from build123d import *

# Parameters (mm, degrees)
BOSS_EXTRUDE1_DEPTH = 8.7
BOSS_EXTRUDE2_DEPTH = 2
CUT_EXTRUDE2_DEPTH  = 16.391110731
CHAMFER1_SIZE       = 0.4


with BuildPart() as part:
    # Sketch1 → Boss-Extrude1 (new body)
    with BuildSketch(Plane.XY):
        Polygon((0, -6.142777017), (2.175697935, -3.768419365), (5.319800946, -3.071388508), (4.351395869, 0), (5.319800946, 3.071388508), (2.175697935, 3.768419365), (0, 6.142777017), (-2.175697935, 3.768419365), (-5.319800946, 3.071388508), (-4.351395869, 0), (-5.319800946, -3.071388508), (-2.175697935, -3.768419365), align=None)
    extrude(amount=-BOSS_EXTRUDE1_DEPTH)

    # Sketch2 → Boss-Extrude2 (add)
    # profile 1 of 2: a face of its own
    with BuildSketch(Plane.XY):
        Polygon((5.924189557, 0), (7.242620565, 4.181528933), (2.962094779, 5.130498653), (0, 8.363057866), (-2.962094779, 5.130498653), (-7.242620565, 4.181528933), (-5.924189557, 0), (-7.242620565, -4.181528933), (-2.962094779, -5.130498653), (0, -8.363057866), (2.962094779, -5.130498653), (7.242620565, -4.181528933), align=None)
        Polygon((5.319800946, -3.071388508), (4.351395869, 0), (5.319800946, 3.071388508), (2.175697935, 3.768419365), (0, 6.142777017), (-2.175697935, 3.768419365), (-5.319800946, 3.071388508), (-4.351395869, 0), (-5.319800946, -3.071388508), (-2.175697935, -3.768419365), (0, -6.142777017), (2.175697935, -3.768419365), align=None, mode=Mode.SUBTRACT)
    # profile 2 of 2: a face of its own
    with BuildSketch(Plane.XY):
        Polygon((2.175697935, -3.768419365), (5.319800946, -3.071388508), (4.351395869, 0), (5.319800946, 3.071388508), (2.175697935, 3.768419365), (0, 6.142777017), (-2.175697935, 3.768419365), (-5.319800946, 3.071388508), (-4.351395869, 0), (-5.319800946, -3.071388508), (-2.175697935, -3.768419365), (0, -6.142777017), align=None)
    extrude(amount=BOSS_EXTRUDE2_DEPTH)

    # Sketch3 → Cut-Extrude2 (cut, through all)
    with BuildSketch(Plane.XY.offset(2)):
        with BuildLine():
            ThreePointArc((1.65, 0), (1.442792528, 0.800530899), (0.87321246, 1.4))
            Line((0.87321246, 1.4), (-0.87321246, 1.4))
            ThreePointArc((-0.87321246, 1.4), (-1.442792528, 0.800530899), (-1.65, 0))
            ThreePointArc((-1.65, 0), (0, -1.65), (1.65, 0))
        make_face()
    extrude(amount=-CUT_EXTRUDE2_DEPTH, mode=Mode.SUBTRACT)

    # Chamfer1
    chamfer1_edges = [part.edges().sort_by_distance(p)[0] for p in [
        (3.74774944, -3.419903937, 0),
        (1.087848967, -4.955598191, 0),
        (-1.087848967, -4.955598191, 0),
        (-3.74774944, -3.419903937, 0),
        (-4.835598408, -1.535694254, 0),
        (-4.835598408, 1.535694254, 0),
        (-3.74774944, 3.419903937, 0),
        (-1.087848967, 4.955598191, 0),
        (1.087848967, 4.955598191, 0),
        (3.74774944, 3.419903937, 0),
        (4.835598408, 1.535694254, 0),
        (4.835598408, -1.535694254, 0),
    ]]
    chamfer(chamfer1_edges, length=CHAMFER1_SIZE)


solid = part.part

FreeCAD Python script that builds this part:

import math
import FreeCAD as App
import Part
import Sketcher

V = App.Vector
Q = App.Units.Quantity


def edges_at(feature, points):
    """Names of the edges that pass closest to the given points."""
    edges = feature.Shape.Edges
    near = lambda p: min(range(len(edges)), key=lambda i: edges[i].distToShape(Part.Vertex(*p))[0])
    return sorted({f"Edge{near(p) + 1}" for p in points})


def add_polygon(sketch, points):
    """Adds a closed chain of lines whose ends are joined by coincident constraints."""
    first, n = sketch.GeometryCount, len(points)
    for a, b in zip(points, points[1:] + points[:1]):
        sketch.addGeometry(Part.LineSegment(App.Vector(*a, 0), App.Vector(*b, 0)), False)
    for i in range(n):
        sketch.addConstraint(Sketcher.Constraint("Coincident", first + i, 2, first + (i + 1) % n, 1))

doc = App.newDocument("Part")
params = doc.addObject("Spreadsheet::Sheet", "Params")
for row, (alias, value) in enumerate([
    ("pad1_length", "8.7 mm"),
    ("pad2_length", "2 mm"),
    ("sketch3_radius", "1.65 mm"),
    ("chamfer_size", "0.4 mm"),
], start=1):
    params.set(f"A{row}", alias)
    params.set(f"B{row}", "=" + value)
    params.setAlias(f"B{row}", alias)

body = doc.addObject("PartDesign::Body", "Body")

sketch1 = doc.addObject("Sketcher::SketchObject", "Sketch")
body.addObject(sketch1)
sketch1.AttachmentSupport = (doc.XY_Plane, [""])
sketch1.MapMode = "FlatFace"
add_polygon(sketch1, [(0, -6.1), (2.2, -3.8), (5.3, -3.1), (4.4, 0), (5.3, 3.1), (2.2, 3.8), (0, 6.1), (-2.2, 3.8), (-5.3, 3.1), (-4.4, 0), (-5.3, -3.1), (-2.2, -3.8)])
sketch1.addConstraint([
    Sketcher.Constraint("Symmetric", 0, 2, 6, 2, -1, 1),
    Sketcher.Constraint("Symmetric", 1, 2, 7, 2, -1, 1),
    Sketcher.Constraint("Symmetric", 2, 2, 8, 2, -1, 1),
    Sketcher.Constraint("Symmetric", 3, 2, 9, 2, -1, 1),
    Sketcher.Constraint("Symmetric", 4, 2, 10, 2, -1, 1),
    Sketcher.Constraint("Symmetric", 5, 2, 11, 2, -1, 1),
    Sketcher.Constraint("Symmetric", 4, 2, 6, 2, -2),
    Sketcher.Constraint("Symmetric", 3, 2, 7, 2, -2),
    Sketcher.Constraint("PointOnObject", 2, 2, -1),
    Sketcher.Constraint("PointOnObject", 5, 2, -2),
    Sketcher.Constraint("Equal", 0, 1),
    Sketcher.Constraint("Equal", 1, 2),
    Sketcher.Constraint("Angle", 0, Q("47.5 deg")),
    Sketcher.Constraint("Angle", 1, Q("12.5 deg")),
    Sketcher.Constraint("Angle", 2, Q("107.5 deg")),
    Sketcher.Constraint("DistanceX", -1, 1, 1, 2, Q("5.319801 mm")),
])
pad1 = doc.addObject("PartDesign::Pad", "Pad")
body.addObject(pad1)
pad1.Profile = sketch1
pad1.setExpression("Length", "Params.pad1_length")
pad1.Reversed = True

sketch2 = doc.addObject("Sketcher::SketchObject", "Sketch001")
body.addObject(sketch2)
sketch2.AttachmentSupport = (doc.XY_Plane, [""])
sketch2.MapMode = "FlatFace"
add_polygon(sketch2, [(5.9, 0), (7.2, 4.2), (3, 5.1), (0, 8.4), (-3, 5.1), (-7.2, 4.2), (-5.9, 0), (-7.2, -4.2), (-3, -5.1), (0, -8.4), (3, -5.1), (7.2, -4.2)])
sketch2.addConstraint([
    Sketcher.Constraint("Symmetric", 0, 2, 6, 2, -1, 1),
    Sketcher.Constraint("Symmetric", 1, 2, 7, 2, -1, 1),
    Sketcher.Constraint("Symmetric", 2, 2, 8, 2, -1, 1),
    Sketcher.Constraint("Symmetric", 3, 2, 9, 2, -1, 1),
    Sketcher.Constraint("Symmetric", 4, 2, 10, 2, -1, 1),
    Sketcher.Constraint("Symmetric", 5, 2, 11, 2, -1, 1),
    Sketcher.Constraint("Symmetric", 1, 2, 3, 2, -2),
    Sketcher.Constraint("Symmetric", 0, 2, 4, 2, -2),
    Sketcher.Constraint("PointOnObject", 2, 2, -2),
    Sketcher.Constraint("PointOnObject", 5, 2, -1),
    Sketcher.Constraint("Equal", 0, 1),
    Sketcher.Constraint("Equal", 1, 2),
    Sketcher.Constraint("Angle", 0, Q("72.5 deg")),
    Sketcher.Constraint("Angle", 1, Q("167.5 deg")),
    Sketcher.Constraint("Angle", 2, Q("132.5 deg")),
    Sketcher.Constraint("DistanceY", -1, 1, 1, 2, Q("5.130499 mm")),
])
pad2 = doc.addObject("PartDesign::Pad", "Pad001")
body.addObject(pad2)
pad2.Profile = sketch2
pad2.setExpression("Length", "Params.pad2_length")

sketch3 = doc.addObject("Sketcher::SketchObject", "Sketch002")
body.addObject(sketch3)
sketch3.AttachmentSupport = (doc.XY_Plane, [""])
sketch3.MapMode = "FlatFace"
sketch3.AttachmentOffset = App.Placement(V(0, 0, 2), App.Rotation())
sketch3.addGeometry([
    Part.ArcOfCircle(Part.Circle(V(0, 0, 0), V(0, 0, 1), 1.7), math.radians(0), math.radians(58)),
    Part.LineSegment(V(0.9, 1.4, 0), V(-0.9, 1.4, 0)),
    Part.ArcOfCircle(Part.Circle(V(0, 0, 0), V(0, 0, 1), 1.7), math.radians(122), math.radians(180)),
    Part.ArcOfCircle(Part.Circle(V(0, 0, 0), V(0, 0, 1), 1.6), math.radians(180), math.radians(360)),
], False)
sketch3.addConstraint([
    Sketcher.Constraint("Coincident", 0, 2, 1, 1),
    Sketcher.Constraint("Coincident", 1, 2, 2, 1),
    Sketcher.Constraint("Tangent", 2, 2, 3, 1),
    Sketcher.Constraint("Tangent", 3, 2, 0, 1),
    Sketcher.Constraint("Horizontal", 1),
    Sketcher.Constraint("Coincident", 0, 3, -1, 1),
    Sketcher.Constraint("Equal", 0, 2),
    Sketcher.Constraint("Equal", 2, 3),
    Sketcher.Constraint("PointOnObject", 2, 2, -1),
    Sketcher.Constraint("PointOnObject", 3, 2, -1),
    Sketcher.Constraint("Radius", 0, Q("1.65 mm")),
    Sketcher.Constraint("DistanceY", -1, 1, 0, 2, Q("1.4 mm")),
])
sketch3.setExpression("Constraints[10]", "Params.sketch3_radius")
pocket1 = doc.addObject("PartDesign::Pocket", "Pocket")
body.addObject(pocket1)
pocket1.Profile = sketch3
pocket1.Type = "ThroughAll"
doc.recompute()

chamfer = doc.addObject("PartDesign::Chamfer", "Chamfer")
body.addObject(chamfer)
chamfer.Base = (pocket1, edges_at(pocket1, [
    (3.748, -3.42, 0),
    (1.088, -4.956, 0),
    (-1.088, -4.956, 0),
    (-3.748, -3.42, 0),
    (-4.836, -1.536, 0),
    (-4.836, 1.536, 0),
    (-3.748, 3.42, 0),
    (-1.088, 4.956, 0),
    (1.088, 4.956, 0),
    (3.748, 3.42, 0),
    (4.836, 1.536, 0),
    (4.836, -1.536, 0),
]))
chamfer.setExpression("Size", "Params.chamfer_size")

doc.recompute()
